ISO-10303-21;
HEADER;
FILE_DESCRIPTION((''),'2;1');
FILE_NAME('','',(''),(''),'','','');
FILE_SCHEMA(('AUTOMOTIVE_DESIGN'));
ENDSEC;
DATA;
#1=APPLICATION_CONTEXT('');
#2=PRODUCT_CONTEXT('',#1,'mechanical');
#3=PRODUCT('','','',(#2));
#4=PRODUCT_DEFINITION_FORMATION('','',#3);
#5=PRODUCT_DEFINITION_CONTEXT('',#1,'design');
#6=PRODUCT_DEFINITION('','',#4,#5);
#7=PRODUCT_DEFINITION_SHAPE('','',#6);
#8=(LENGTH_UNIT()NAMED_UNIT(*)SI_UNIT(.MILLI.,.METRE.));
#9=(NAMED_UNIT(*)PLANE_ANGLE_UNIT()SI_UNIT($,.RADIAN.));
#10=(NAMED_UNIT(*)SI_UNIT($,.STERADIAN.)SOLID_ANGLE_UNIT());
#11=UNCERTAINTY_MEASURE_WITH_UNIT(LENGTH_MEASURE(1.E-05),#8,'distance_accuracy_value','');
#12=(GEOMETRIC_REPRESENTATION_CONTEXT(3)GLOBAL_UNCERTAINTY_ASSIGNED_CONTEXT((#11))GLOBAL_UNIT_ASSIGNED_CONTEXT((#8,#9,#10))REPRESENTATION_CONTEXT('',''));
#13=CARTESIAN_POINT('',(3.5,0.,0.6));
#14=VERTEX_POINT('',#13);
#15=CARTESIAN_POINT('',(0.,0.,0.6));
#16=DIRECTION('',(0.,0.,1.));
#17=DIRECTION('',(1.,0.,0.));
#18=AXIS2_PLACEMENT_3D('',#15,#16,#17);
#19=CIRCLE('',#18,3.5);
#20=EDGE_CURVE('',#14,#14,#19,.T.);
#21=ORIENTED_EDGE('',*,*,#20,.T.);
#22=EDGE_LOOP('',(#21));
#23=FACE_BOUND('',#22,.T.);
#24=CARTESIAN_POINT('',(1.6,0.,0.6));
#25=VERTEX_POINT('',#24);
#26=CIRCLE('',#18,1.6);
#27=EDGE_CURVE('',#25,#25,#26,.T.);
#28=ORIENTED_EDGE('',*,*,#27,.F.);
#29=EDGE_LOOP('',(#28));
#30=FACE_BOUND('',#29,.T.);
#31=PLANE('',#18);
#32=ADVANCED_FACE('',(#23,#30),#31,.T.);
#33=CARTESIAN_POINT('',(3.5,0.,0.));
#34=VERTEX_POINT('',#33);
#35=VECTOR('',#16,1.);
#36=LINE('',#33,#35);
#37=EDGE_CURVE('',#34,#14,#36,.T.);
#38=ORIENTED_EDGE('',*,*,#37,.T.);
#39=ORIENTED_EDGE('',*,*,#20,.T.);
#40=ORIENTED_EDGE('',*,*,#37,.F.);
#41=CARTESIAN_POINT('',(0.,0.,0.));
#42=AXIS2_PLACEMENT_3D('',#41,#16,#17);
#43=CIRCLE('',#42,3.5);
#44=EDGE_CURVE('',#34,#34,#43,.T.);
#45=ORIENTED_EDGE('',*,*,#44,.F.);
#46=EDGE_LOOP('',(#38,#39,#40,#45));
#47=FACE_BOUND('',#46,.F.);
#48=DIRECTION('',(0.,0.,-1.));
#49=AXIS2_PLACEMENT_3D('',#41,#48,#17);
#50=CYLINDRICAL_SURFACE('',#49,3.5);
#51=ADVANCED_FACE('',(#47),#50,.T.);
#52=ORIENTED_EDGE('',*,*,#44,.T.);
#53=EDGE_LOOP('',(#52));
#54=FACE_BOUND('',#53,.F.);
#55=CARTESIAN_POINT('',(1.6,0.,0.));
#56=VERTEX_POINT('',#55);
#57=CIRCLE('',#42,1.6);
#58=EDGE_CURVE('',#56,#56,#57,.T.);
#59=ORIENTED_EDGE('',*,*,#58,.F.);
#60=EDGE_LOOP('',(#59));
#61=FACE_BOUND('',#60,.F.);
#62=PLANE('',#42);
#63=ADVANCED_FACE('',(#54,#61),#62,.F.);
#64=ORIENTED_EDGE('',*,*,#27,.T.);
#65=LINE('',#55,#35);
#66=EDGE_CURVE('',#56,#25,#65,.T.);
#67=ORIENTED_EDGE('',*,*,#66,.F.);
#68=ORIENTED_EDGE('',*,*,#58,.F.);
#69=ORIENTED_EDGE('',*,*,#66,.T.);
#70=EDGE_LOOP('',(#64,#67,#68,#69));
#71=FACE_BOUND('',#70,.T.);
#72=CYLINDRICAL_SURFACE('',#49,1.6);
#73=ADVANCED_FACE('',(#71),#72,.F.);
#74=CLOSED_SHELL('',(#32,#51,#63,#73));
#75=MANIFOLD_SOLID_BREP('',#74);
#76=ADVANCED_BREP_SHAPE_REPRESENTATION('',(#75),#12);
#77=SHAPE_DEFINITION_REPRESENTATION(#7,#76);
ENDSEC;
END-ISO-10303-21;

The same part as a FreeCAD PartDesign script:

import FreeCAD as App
import Part
import Sketcher
Q = App.Units.Quantity

doc = App.newDocument("Part")
body = doc.addObject("PartDesign::Body", "Body")

# Sketch on XY plane
sketch1 = body.newObject("Sketcher::SketchObject", "Sketch")
sketch1.AttachmentSupport = (doc.getObject("XY_Plane"), [""])
sketch1.MapMode = "FlatFace"
sketch1.addGeometry(Part.Circle(App.Vector(0, 0, 0), App.Vector(0, 0, 1), 3.5), False)
sketch1.addGeometry(Part.Circle(App.Vector(0, 0, 0), App.Vector(0, 0, 1), 1.6), False)
sketch1.addConstraint(Sketcher.Constraint("Coincident", 0, 3, -1, 1))
sketch1.addConstraint(Sketcher.Constraint("Coincident", 1, 3, -1, 1))
sketch1.addConstraint(Sketcher.Constraint("Diameter", 0, Q("7 mm")))
sketch1.addConstraint(Sketcher.Constraint("Diameter", 1, Q("3.2 mm")))
pad1 = body.newObject("PartDesign::Pad", "Pad")
pad1.Profile = sketch1
pad1.Length = 0.6

doc.recompute()
